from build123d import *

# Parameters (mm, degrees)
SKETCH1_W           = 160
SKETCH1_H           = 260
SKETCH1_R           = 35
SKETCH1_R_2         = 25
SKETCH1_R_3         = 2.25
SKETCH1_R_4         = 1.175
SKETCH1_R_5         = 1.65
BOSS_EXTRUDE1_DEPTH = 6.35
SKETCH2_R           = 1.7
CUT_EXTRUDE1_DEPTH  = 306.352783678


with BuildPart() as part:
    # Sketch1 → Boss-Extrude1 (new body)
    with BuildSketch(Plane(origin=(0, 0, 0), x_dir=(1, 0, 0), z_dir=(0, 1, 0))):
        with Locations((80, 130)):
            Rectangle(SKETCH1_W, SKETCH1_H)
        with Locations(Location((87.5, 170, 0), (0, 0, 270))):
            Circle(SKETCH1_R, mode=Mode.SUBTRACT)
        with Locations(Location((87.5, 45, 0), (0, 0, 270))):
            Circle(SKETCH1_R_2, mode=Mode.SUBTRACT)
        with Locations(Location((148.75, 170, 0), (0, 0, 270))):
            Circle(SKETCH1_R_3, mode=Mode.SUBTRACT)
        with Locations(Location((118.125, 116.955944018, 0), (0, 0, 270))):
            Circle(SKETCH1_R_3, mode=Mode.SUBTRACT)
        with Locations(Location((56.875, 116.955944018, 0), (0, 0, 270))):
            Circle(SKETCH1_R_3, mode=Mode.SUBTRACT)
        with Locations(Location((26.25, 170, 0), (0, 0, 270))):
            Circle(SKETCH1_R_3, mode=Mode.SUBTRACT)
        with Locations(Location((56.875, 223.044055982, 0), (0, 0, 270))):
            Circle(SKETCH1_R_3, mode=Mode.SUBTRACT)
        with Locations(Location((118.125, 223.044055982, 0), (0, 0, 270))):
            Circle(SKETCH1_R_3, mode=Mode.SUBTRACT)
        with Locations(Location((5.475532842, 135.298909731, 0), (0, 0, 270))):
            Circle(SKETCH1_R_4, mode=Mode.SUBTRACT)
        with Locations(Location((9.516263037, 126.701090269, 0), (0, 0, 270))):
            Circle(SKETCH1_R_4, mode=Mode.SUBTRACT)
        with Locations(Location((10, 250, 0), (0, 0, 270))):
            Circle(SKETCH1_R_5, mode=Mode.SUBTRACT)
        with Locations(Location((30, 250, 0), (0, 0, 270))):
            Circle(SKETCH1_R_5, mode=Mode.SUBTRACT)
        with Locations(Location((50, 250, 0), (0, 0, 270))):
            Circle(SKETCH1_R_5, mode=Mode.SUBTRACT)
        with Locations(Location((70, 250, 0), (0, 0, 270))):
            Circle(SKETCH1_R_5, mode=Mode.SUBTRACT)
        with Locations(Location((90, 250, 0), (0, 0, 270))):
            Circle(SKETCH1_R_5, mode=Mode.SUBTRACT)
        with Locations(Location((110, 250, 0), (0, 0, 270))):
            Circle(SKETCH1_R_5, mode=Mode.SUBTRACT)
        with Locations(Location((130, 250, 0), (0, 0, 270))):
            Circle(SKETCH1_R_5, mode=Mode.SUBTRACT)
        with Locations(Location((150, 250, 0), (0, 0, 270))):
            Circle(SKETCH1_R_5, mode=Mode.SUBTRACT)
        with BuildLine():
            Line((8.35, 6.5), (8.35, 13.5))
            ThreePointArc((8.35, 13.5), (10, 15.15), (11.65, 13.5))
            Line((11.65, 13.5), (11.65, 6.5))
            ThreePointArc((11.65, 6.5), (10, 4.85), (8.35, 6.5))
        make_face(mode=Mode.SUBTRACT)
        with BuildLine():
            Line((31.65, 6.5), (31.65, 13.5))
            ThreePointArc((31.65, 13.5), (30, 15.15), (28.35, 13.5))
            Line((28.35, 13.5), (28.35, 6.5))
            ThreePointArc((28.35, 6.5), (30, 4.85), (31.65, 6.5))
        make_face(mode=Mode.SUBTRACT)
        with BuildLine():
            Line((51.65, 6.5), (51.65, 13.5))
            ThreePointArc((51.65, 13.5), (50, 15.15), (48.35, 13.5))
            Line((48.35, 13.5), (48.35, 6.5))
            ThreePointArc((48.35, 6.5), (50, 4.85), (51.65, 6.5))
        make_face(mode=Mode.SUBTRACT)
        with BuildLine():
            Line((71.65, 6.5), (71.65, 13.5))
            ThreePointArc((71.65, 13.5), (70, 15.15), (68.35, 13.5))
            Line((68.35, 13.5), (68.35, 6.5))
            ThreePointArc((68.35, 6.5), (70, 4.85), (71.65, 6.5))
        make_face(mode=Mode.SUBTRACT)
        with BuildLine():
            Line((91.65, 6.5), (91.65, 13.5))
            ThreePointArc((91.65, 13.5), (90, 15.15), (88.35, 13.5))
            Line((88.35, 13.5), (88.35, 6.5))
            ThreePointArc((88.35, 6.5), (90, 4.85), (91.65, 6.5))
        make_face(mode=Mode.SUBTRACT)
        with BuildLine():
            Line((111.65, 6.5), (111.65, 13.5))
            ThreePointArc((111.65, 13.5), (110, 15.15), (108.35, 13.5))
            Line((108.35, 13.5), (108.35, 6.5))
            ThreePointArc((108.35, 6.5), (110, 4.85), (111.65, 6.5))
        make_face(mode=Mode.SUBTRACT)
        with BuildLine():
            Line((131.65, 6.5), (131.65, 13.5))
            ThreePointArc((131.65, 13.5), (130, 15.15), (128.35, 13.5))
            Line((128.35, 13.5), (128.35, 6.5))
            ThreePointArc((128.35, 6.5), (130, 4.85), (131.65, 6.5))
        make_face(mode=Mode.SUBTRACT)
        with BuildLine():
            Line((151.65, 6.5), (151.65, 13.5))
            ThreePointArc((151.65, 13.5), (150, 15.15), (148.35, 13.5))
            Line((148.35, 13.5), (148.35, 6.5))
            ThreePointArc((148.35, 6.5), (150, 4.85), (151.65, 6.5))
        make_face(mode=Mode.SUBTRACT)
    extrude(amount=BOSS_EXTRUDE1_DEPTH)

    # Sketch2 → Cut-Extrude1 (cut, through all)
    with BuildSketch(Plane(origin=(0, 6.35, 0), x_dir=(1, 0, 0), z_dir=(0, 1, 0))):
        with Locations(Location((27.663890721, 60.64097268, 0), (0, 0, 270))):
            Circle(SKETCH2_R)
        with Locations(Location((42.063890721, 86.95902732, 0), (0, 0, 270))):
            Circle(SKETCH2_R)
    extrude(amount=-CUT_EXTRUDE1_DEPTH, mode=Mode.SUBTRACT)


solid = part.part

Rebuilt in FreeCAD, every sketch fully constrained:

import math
import FreeCAD as App
import Part
import Sketcher
from FreeCAD import Vector
Q = App.Units.Quantity


def add_polygon(sketch, points):
    """Adds a closed chain of lines whose ends are joined by coincident constraints."""
    first, n = sketch.GeometryCount, len(points)
    for a, b in zip(points, points[1:] + points[:1]):
        sketch.addGeometry(Part.LineSegment(App.Vector(*a, 0), App.Vector(*b, 0)), False)
    for i in range(n):
        sketch.addConstraint(Sketcher.Constraint("Coincident", first + i, 2, first + (i + 1) % n, 1))

doc = App.newDocument("Part")
body = doc.addObject("PartDesign::Body", "Body")

sketch1 = body.newObject("Sketcher::SketchObject", "Sketch")
sketch1.AttachmentSupport = (doc.getObject("XZ_Plane"), [""])
sketch1.MapMode = "FlatFace"
add_polygon(sketch1, [(0, -260), (0, 0), (160, 0), (160, -260)])
sketch1.addGeometry(Part.ArcOfCircle(Part.Circle(Vector(10, -6.5, 0), Vector(0, 0, 1), 1.6), math.radians(0), math.radians(180)), False)
sketch1.addGeometry(Part.LineSegment(Vector(8.3, -6.5, 0), Vector(8.3, -13.5, 0)), False)
sketch1.addGeometry(Part.ArcOfCircle(Part.Circle(Vector(10, -13.5, 0), Vector(0, 0, 1), 1.6), math.radians(180), math.radians(360)), False)
sketch1.addGeometry(Part.LineSegment(Vector(11.7, -13.5, 0), Vector(11.7, -6.5, 0)), False)
sketch1.addGeometry(Part.LineSegment(Vector(31.6, -13.5, 0), Vector(31.6, -6.5, 0)), False)
sketch1.addGeometry(Part.ArcOfCircle(Part.Circle(Vector(30, -6.5, 0), Vector(0, 0, 1), 1.6), math.radians(0), math.radians(180)), False)
sketch1.addGeometry(Part.LineSegment(Vector(28.4, -6.5, 0), Vector(28.4, -13.5, 0)), False)
sketch1.addGeometry(Part.ArcOfCircle(Part.Circle(Vector(30, -13.5, 0), Vector(0, 0, 1), 1.6), math.radians(180), math.radians(360)), False)
sketch1.addGeometry(Part.LineSegment(Vector(51.6, -13.5, 0), Vector(51.6, -6.5, 0)), False)
sketch1.addGeometry(Part.ArcOfCircle(Part.Circle(Vector(50, -6.5, 0), Vector(0, 0, 1), 1.6), math.radians(0), math.radians(180)), False)
sketch1.addGeometry(Part.LineSegment(Vector(48.4, -6.5, 0), Vector(48.4, -13.5, 0)), False)
sketch1.addGeometry(Part.ArcOfCircle(Part.Circle(Vector(50, -13.5, 0), Vector(0, 0, 1), 1.6), math.radians(180), math.radians(360)), False)
sketch1.addGeometry(Part.LineSegment(Vector(71.7, -13.5, 0), Vector(71.7, -6.5, 0)), False)
sketch1.addGeometry(Part.ArcOfCircle(Part.Circle(Vector(70, -6.5, 0), Vector(0, 0, 1), 1.6), math.radians(0), math.radians(180)), False)
sketch1.addGeometry(Part.LineSegment(Vector(68.3, -6.5, 0), Vector(68.3, -13.5, 0)), False)
sketch1.addGeometry(Part.ArcOfCircle(Part.Circle(Vector(70, -13.5, 0), Vector(0, 0, 1), 1.6), math.radians(180), math.radians(360)), False)
sketch1.addGeometry(Part.Circle(Vector(9.5, -126.7, 0), Vector(0, 0, 1), 1.2), False)
sketch1.addGeometry(Part.Circle(Vector(56.9, -117, 0), Vector(0, 0, 1), 2.2), False)
sketch1.addGeometry(Part.LineSegment(Vector(91.7, -13.5, 0), Vector(91.7, -6.5, 0)), False)
sketch1.addGeometry(Part.ArcOfCircle(Part.Circle(Vector(90, -6.5, 0), Vector(0, 0, 1), 1.6), math.radians(0), math.radians(180)), False)
sketch1.addGeometry(Part.LineSegment(Vector(88.3, -6.5, 0), Vector(88.3, -13.5, 0)), False)
sketch1.addGeometry(Part.ArcOfCircle(Part.Circle(Vector(90, -13.5, 0), Vector(0, 0, 1), 1.6), math.radians(180), math.radians(360)), False)
sketch1.addGeometry(Part.LineSegment(Vector(111.7, -13.5, 0), Vector(111.7, -6.5, 0)), False)
sketch1.addGeometry(Part.ArcOfCircle(Part.Circle(Vector(110, -6.5, 0), Vector(0, 0, 1), 1.6), math.radians(0), math.radians(180)), False)
sketch1.addGeometry(Part.LineSegment(Vector(108.3, -6.5, 0), Vector(108.3, -13.5, 0)), False)
sketch1.addGeometry(Part.ArcOfCircle(Part.Circle(Vector(110, -13.5, 0), Vector(0, 0, 1), 1.6), math.radians(180), math.radians(360)), False)
sketch1.addGeometry(Part.Circle(Vector(87.5, -45, 0), Vector(0, 0, 1), 25), False)
sketch1.addGeometry(Part.LineSegment(Vector(131.7, -13.5, 0), Vector(131.7, -6.5, 0)), False)
sketch1.addGeometry(Part.ArcOfCircle(Part.Circle(Vector(130, -6.5, 0), Vector(0, 0, 1), 1.6), math.radians(0), math.radians(180)), False)
sketch1.addGeometry(Part.LineSegment(Vector(128.3, -6.5, 0), Vector(128.3, -13.5, 0)), False)
sketch1.addGeometry(Part.ArcOfCircle(Part.Circle(Vector(130, -13.5, 0), Vector(0, 0, 1), 1.6), math.radians(180), math.radians(360)), False)
sketch1.addGeometry(Part.LineSegment(Vector(151.7, -13.5, 0), Vector(151.7, -6.5, 0)), False)
sketch1.addGeometry(Part.ArcOfCircle(Part.Circle(Vector(150, -6.5, 0), Vector(0, 0, 1), 1.6), math.radians(0), math.radians(180)), False)
sketch1.addGeometry(Part.LineSegment(Vector(148.3, -6.5, 0), Vector(148.3, -13.5, 0)), False)
sketch1.addGeometry(Part.ArcOfCircle(Part.Circle(Vector(150, -13.5, 0), Vector(0, 0, 1), 1.6), math.radians(180), math.radians(360)), False)
sketch1.addGeometry(Part.Circle(Vector(118.1, -117, 0), Vector(0, 0, 1), 2.2), False)
sketch1.addGeometry(Part.Circle(Vector(5.5, -135.3, 0), Vector(0, 0, 1), 1.2), False)
sketch1.addGeometry(Part.Circle(Vector(26.2, -170, 0), Vector(0, 0, 1), 2.2), False)
sketch1.addGeometry(Part.Circle(Vector(10, -250, 0), Vector(0, 0, 1), 1.6), False)
sketch1.addGeometry(Part.Circle(Vector(30, -250, 0), Vector(0, 0, 1), 1.6), False)
sketch1.addGeometry(Part.Circle(Vector(56.9, -223, 0), Vector(0, 0, 1), 2.2), False)
sketch1.addGeometry(Part.Circle(Vector(50, -250, 0), Vector(0, 0, 1), 1.6), False)
sketch1.addGeometry(Part.Circle(Vector(70, -250, 0), Vector(0, 0, 1), 1.6), False)
sketch1.addGeometry(Part.Circle(Vector(87.5, -170, 0), Vector(0, 0, 1), 35), False)
sketch1.addGeometry(Part.Circle(Vector(148.8, -170, 0), Vector(0, 0, 1), 2.2), False)
sketch1.addGeometry(Part.Circle(Vector(90, -250, 0), Vector(0, 0, 1), 1.6), False)
sketch1.addGeometry(Part.Circle(Vector(110, -250, 0), Vector(0, 0, 1), 1.6), False)
sketch1.addGeometry(Part.Circle(Vector(118.1, -223, 0), Vector(0, 0, 1), 2.2), False)
sketch1.addGeometry(Part.Circle(Vector(130, -250, 0), Vector(0, 0, 1), 1.6), False)
sketch1.addGeometry(Part.Circle(Vector(150, -250, 0), Vector(0, 0, 1), 1.6), False)
sketch1.addConstraint(Sketcher.Constraint("Tangent", 4, 2, 5, 1))
sketch1.addConstraint(Sketcher.Constraint("Tangent", 5, 2, 6, 1))
sketch1.addConstraint(Sketcher.Constraint("Tangent", 6, 2, 7, 1))
sketch1.addConstraint(Sketcher.Constraint("Tangent", 7, 2, 4, 1))
sketch1.addConstraint(Sketcher.Constraint("Tangent", 8, 2, 9, 1))
sketch1.addConstraint(Sketcher.Constraint("Tangent", 9, 2, 10, 1))
sketch1.addConstraint(Sketcher.Constraint("Tangent", 10, 2, 11, 1))
sketch1.addConstraint(Sketcher.Constraint("Tangent", 11, 2, 8, 1))
sketch1.addConstraint(Sketcher.Constraint("Tangent", 12, 2, 13, 1))
sketch1.addConstraint(Sketcher.Constraint("Tangent", 13, 2, 14, 1))
sketch1.addConstraint(Sketcher.Constraint("Tangent", 14, 2, 15, 1))
sketch1.addConstraint(Sketcher.Constraint("Tangent", 15, 2, 12, 1))
sketch1.addConstraint(Sketcher.Constraint("Tangent", 16, 2, 17, 1))
sketch1.addConstraint(Sketcher.Constraint("Tangent", 17, 2, 18, 1))
sketch1.addConstraint(Sketcher.Constraint("Tangent", 18, 2, 19, 1))
sketch1.addConstraint(Sketcher.Constraint("Tangent", 19, 2, 16, 1))
sketch1.addConstraint(Sketcher.Constraint("Tangent", 22, 2, 23, 1))
sketch1.addConstraint(Sketcher.Constraint("Tangent", 23, 2, 24, 1))
sketch1.addConstraint(Sketcher.Constraint("Tangent", 24, 2, 25, 1))
sketch1.addConstraint(Sketcher.Constraint("Tangent", 25, 2, 22, 1))
sketch1.addConstraint(Sketcher.Constraint("Tangent", 26, 2, 27, 1))
sketch1.addConstraint(Sketcher.Constraint("Tangent", 27, 2, 28, 1))
sketch1.addConstraint(Sketcher.Constraint("Tangent", 28, 2, 29, 1))
sketch1.addConstraint(Sketcher.Constraint("Tangent", 29, 2, 26, 1))
sketch1.addConstraint(Sketcher.Constraint("Tangent", 31, 2, 32, 1))
sketch1.addConstraint(Sketcher.Constraint("Tangent", 32, 2, 33, 1))
sketch1.addConstraint(Sketcher.Constraint("Tangent", 33, 2, 34, 1))
sketch1.addConstraint(Sketcher.Constraint("Tangent", 34, 2, 31, 1))
sketch1.addConstraint(Sketcher.Constraint("Tangent", 35, 2, 36, 1))
sketch1.addConstraint(Sketcher.Constraint("Tangent", 36, 2, 37, 1))
sketch1.addConstraint(Sketcher.Constraint("Tangent", 37, 2, 38, 1))
sketch1.addConstraint(Sketcher.Constraint("Tangent", 38, 2, 35, 1))
sketch1.addConstraint(Sketcher.Constraint("Vertical", 0))
sketch1.addConstraint(Sketcher.Constraint("Horizontal", 1))
sketch1.addConstraint(Sketcher.Constraint("Vertical", 2))
sketch1.addConstraint(Sketcher.Constraint("Horizontal", 3))
sketch1.addConstraint(Sketcher.Constraint("Vertical", 5))
sketch1.addConstraint(Sketcher.Constraint("Vertical", 7))
sketch1.addConstraint(Sketcher.Constraint("Vertical", 8))
sketch1.addConstraint(Sketcher.Constraint("Vertical", 10))
sketch1.addConstraint(Sketcher.Constraint("Vertical", 12))
sketch1.addConstraint(Sketcher.Constraint("Vertical", 14))
sketch1.addConstraint(Sketcher.Constraint("Vertical", 16))
sketch1.addConstraint(Sketcher.Constraint("Vertical", 18))
sketch1.addConstraint(Sketcher.Constraint("Vertical", 22))
sketch1.addConstraint(Sketcher.Constraint("Vertical", 24))
sketch1.addConstraint(Sketcher.Constraint("Vertical", 26))
sketch1.addConstraint(Sketcher.Constraint("Vertical", 28))
sketch1.addConstraint(Sketcher.Constraint("Vertical", 31))
sketch1.addConstraint(Sketcher.Constraint("Vertical", 33))
sketch1.addConstraint(Sketcher.Constraint("Vertical", 35))
sketch1.addConstraint(Sketcher.Constraint("Vertical", 37))
sketch1.addConstraint(Sketcher.Constraint("Coincident", 0, 2, -1, 1))
sketch1.addConstraint(Sketcher.Constraint("Equal", 6, 9))
sketch1.addConstraint(Sketcher.Constraint("Equal", 11, 13))
sketch1.addConstraint(Sketcher.Constraint("Equal", 15, 17))
sketch1.addConstraint(Sketcher.Constraint("Equal", 19, 23))
sketch1.addConstraint(Sketcher.Constraint("Equal", 25, 27))
sketch1.addConstraint(Sketcher.Constraint("Equal", 29, 32))
sketch1.addConstraint(Sketcher.Constraint("Equal", 34, 36))
sketch1.addConstraint(Sketcher.Constraint("Equal", 21, 39))
sketch1.addConstraint(Sketcher.Constraint("Equal", 20, 40))
sketch1.addConstraint(Sketcher.Constraint("Equal", 39, 41))
sketch1.addConstraint(Sketcher.Constraint("Equal", 38, 42))
sketch1.addConstraint(Sketcher.Constraint("Equal", 42, 43))
sketch1.addConstraint(Sketcher.Constraint("Equal", 41, 44))
sketch1.addConstraint(Sketcher.Constraint("Equal", 43, 45))
sketch1.addConstraint(Sketcher.Constraint("Equal", 45, 46))
sketch1.addConstraint(Sketcher.Constraint("Equal", 44, 48))
sketch1.addConstraint(Sketcher.Constraint("Equal", 46, 49))
sketch1.addConstraint(Sketcher.Constraint("Equal", 49, 50))
sketch1.addConstraint(Sketcher.Constraint("Equal", 48, 51))
sketch1.addConstraint(Sketcher.Constraint("Equal", 50, 52))
sketch1.addConstraint(Sketcher.Constraint("Equal", 52, 53))
sketch1.addConstraint(Sketcher.Constraint("Horizontal", 4, 3, 9, 3))
sketch1.addConstraint(Sketcher.Constraint("Horizontal", 6, 3, 11, 3))
sketch1.addConstraint(Sketcher.Constraint("Horizontal", 9, 3, 13, 3))
sketch1.addConstraint(Sketcher.Constraint("Horizontal", 11, 3, 15, 3))
sketch1.addConstraint(Sketcher.Constraint("Horizontal", 13, 3, 17, 3))
sketch1.addConstraint(Sketcher.Constraint("Horizontal", 15, 3, 19, 3))
sketch1.addConstraint(Sketcher.Constraint("Horizontal", 17, 3, 23, 3))
sketch1.addConstraint(Sketcher.Constraint("Horizontal", 19, 3, 25, 3))
sketch1.addConstraint(Sketcher.Constraint("Horizontal", 23, 3, 27, 3))
sketch1.addConstraint(Sketcher.Constraint("Horizontal", 25, 3, 29, 3))
sketch1.addConstraint(Sketcher.Constraint("Horizontal", 27, 3, 32, 3))
sketch1.addConstraint(Sketcher.Constraint("Horizontal", 29, 3, 34, 3))
sketch1.addConstraint(Sketcher.Constraint("Horizontal", 32, 3, 36, 3))
sketch1.addConstraint(Sketcher.Constraint("Horizontal", 34, 3, 38, 3))
sketch1.addConstraint(Sketcher.Constraint("Horizontal", 21, 3, 39, 3))
sketch1.addConstraint(Sketcher.Constraint("Horizontal", 42, 3, 43, 3))
sketch1.addConstraint(Sketcher.Constraint("Horizontal", 43, 3, 45, 3))
sketch1.addConstraint(Sketcher.Constraint("Horizontal", 45, 3, 46, 3))
sketch1.addConstraint(Sketcher.Constraint("Horizontal", 41, 3, 47, 3))
sketch1.addConstraint(Sketcher.Constraint("Horizontal", 47, 3, 48, 3))
sketch1.addConstraint(Sketcher.Constraint("Horizontal", 46, 3, 49, 3))
sketch1.addConstraint(Sketcher.Constraint("Horizontal", 49, 3, 50, 3))
sketch1.addConstraint(Sketcher.Constraint("Horizontal", 44, 3, 51, 3))
sketch1.addConstraint(Sketcher.Constraint("Horizontal", 50, 3, 52, 3))
sketch1.addConstraint(Sketcher.Constraint("Horizontal", 52, 3, 53, 3))
sketch1.addConstraint(Sketcher.Constraint("Vertical", 6, 3, 42, 3))
sketch1.addConstraint(Sketcher.Constraint("Vertical", 11, 3, 43, 3))
sketch1.addConstraint(Sketcher.Constraint("Vertical", 21, 3, 44, 3))
sketch1.addConstraint(Sketcher.Constraint("Vertical", 15, 3, 45, 3))
sketch1.addConstraint(Sketcher.Constraint("Vertical", 19, 3, 46, 3))
sketch1.addConstraint(Sketcher.Constraint("Vertical", 30, 3, 47, 3))
sketch1.addConstraint(Sketcher.Constraint("Vertical", 25, 3, 49, 3))
sketch1.addConstraint(Sketcher.Constraint("Vertical", 29, 3, 50, 3))
sketch1.addConstraint(Sketcher.Constraint("Vertical", 39, 3, 51, 3))
sketch1.addConstraint(Sketcher.Constraint("Vertical", 34, 3, 52, 3))
sketch1.addConstraint(Sketcher.Constraint("Vertical", 38, 3, 53, 3))
sketch1.addConstraint(Sketcher.Constraint("Diameter", 30, Q("50 mm")))
sketch1.addConstraint(Sketcher.Constraint("Diameter", 47, Q("70 mm")))
sketch1.addConstraint(Sketcher.Constraint("Diameter", 21, Q("4.5 mm")))
sketch1.addConstraint(Sketcher.Constraint("Diameter", 42, Q("3.3 mm")))
sketch1.addConstraint(Sketcher.Constraint("Diameter", 20, Q("2.35 mm")))
sketch1.addConstraint(Sketcher.Constraint("DistanceX", 1, 1, 1, 2, Q("160 mm")))
sketch1.addConstraint(Sketcher.Constraint("DistanceY", 0, 1, 0, 2, Q("260 mm")))
sketch1.addConstraint(Sketcher.Constraint("DistanceY", 5, 2, 5, 1, Q("7 mm")))
sketch1.addConstraint(Sketcher.Constraint("DistanceX", -1, 1, 4, 3, Q("10 mm")))
sketch1.addConstraint(Sketcher.Constraint("DistanceX", -1, 1, 9, 3, Q("30 mm")))
sketch1.addConstraint(Sketcher.Constraint("DistanceX", -1, 1, 13, 3, Q("50 mm")))
sketch1.addConstraint(Sketcher.Constraint("DistanceX", -1, 1, 17, 3, Q("70 mm")))
sketch1.addConstraint(Sketcher.Constraint("DistanceX", -1, 1, 23, 3, Q("90 mm")))
sketch1.addConstraint(Sketcher.Constraint("DistanceX", -1, 1, 27, 3, Q("110 mm")))
sketch1.addConstraint(Sketcher.Constraint("DistanceY", 30, 3, -1, 1, Q("45 mm")))
sketch1.addConstraint(Sketcher.Constraint("DistanceX", -1, 1, 32, 3, Q("130 mm")))
sketch1.addConstraint(Sketcher.Constraint("DistanceX", -1, 1, 36, 3, Q("150 mm")))
sketch1.addConstraint(Sketcher.Constraint("DistanceY", 41, 3, -1, 1, Q("170 mm")))
sketch1.addConstraint(Sketcher.Constraint("DistanceY", 42, 3, -1, 1, Q("250 mm")))
sketch1.addConstraint(Sketcher.Constraint("DistanceY", 4, 3, -1, 1, Q("6.5 mm")))
sketch1.addConstraint(Sketcher.Constraint("DistanceX", -1, 1, 30, 3, Q("87.5 mm")))
sketch1.addConstraint(Sketcher.Constraint("DistanceX", -1, 1, 41, 3, Q("26.25 mm")))
sketch1.addConstraint(Sketcher.Constraint("DistanceX", -1, 1, 48, 3, Q("148.75 mm")))
sketch1.addConstraint(Sketcher.Constraint("DistanceX", -1, 1, 21, 3, Q("56.875 mm")))
sketch1.addConstraint(Sketcher.Constraint("DistanceX", -1, 1, 39, 3, Q("118.125 mm")))
sketch1.addConstraint(Sketcher.Constraint("DistanceY", 20, 3, -1, 1, Q("126.70109 mm")))
sketch1.addConstraint(Sketcher.Constraint("DistanceY", 40, 3, -1, 1, Q("135.29891 mm")))
sketch1.addConstraint(Sketcher.Constraint("DistanceX", -1, 1, 20, 3, Q("9.516263 mm")))
sketch1.addConstraint(Sketcher.Constraint("DistanceY", 21, 3, -1, 1, Q("116.955944 mm")))
sketch1.addConstraint(Sketcher.Constraint("DistanceX", -1, 1, 40, 3, Q("5.475533 mm")))
sketch1.addConstraint(Sketcher.Constraint("DistanceY", 44, 3, -1, 1, Q("223.044056 mm")))
pad1 = body.newObject("PartDesign::Pad", "Pad")
pad1.Profile = sketch1
pad1.Length = 6.35
pad1.Reversed = True

sketch2 = body.newObject("Sketcher::SketchObject", "Sketch001")
sketch2.AttachmentSupport = (doc.getObject("XZ_Plane"), [""])
sketch2.MapMode = "FlatFace"
sketch2.AttachmentOffset = App.Placement(Vector(0, 0, -6.35), App.Rotation())
sketch2.addGeometry(Part.Circle(Vector(27.7, -60.6, 0), Vector(0, 0, 1), 1.7), False)
sketch2.addGeometry(Part.Circle(Vector(42.1, -87, 0), Vector(0, 0, 1), 1.7), False)
sketch2.addConstraint(Sketcher.Constraint("Equal", 0, 1))
sketch2.addConstraint(Sketcher.Constraint("Diameter", 0, Q("3.4 mm")))
sketch2.addConstraint(Sketcher.Constraint("DistanceX", 0, 3, 1, 3, Q("14.4 mm")))
sketch2.addConstraint(Sketcher.Constraint("DistanceX", -1, 1, 0, 3, Q("27.663891 mm")))
sketch2.addConstraint(Sketcher.Constraint("DistanceY", 0, 3, -1, 1, Q("60.640973 mm")))
sketch2.addConstraint(Sketcher.Constraint("DistanceY", 1, 3, -1, 1, Q("86.959027 mm")))
pocket1 = body.newObject("PartDesign::Pocket", "Pocket")
pocket1.Profile = sketch2
pocket1.Type = "ThroughAll"
pocket1.Reversed = True

doc.recompute()
